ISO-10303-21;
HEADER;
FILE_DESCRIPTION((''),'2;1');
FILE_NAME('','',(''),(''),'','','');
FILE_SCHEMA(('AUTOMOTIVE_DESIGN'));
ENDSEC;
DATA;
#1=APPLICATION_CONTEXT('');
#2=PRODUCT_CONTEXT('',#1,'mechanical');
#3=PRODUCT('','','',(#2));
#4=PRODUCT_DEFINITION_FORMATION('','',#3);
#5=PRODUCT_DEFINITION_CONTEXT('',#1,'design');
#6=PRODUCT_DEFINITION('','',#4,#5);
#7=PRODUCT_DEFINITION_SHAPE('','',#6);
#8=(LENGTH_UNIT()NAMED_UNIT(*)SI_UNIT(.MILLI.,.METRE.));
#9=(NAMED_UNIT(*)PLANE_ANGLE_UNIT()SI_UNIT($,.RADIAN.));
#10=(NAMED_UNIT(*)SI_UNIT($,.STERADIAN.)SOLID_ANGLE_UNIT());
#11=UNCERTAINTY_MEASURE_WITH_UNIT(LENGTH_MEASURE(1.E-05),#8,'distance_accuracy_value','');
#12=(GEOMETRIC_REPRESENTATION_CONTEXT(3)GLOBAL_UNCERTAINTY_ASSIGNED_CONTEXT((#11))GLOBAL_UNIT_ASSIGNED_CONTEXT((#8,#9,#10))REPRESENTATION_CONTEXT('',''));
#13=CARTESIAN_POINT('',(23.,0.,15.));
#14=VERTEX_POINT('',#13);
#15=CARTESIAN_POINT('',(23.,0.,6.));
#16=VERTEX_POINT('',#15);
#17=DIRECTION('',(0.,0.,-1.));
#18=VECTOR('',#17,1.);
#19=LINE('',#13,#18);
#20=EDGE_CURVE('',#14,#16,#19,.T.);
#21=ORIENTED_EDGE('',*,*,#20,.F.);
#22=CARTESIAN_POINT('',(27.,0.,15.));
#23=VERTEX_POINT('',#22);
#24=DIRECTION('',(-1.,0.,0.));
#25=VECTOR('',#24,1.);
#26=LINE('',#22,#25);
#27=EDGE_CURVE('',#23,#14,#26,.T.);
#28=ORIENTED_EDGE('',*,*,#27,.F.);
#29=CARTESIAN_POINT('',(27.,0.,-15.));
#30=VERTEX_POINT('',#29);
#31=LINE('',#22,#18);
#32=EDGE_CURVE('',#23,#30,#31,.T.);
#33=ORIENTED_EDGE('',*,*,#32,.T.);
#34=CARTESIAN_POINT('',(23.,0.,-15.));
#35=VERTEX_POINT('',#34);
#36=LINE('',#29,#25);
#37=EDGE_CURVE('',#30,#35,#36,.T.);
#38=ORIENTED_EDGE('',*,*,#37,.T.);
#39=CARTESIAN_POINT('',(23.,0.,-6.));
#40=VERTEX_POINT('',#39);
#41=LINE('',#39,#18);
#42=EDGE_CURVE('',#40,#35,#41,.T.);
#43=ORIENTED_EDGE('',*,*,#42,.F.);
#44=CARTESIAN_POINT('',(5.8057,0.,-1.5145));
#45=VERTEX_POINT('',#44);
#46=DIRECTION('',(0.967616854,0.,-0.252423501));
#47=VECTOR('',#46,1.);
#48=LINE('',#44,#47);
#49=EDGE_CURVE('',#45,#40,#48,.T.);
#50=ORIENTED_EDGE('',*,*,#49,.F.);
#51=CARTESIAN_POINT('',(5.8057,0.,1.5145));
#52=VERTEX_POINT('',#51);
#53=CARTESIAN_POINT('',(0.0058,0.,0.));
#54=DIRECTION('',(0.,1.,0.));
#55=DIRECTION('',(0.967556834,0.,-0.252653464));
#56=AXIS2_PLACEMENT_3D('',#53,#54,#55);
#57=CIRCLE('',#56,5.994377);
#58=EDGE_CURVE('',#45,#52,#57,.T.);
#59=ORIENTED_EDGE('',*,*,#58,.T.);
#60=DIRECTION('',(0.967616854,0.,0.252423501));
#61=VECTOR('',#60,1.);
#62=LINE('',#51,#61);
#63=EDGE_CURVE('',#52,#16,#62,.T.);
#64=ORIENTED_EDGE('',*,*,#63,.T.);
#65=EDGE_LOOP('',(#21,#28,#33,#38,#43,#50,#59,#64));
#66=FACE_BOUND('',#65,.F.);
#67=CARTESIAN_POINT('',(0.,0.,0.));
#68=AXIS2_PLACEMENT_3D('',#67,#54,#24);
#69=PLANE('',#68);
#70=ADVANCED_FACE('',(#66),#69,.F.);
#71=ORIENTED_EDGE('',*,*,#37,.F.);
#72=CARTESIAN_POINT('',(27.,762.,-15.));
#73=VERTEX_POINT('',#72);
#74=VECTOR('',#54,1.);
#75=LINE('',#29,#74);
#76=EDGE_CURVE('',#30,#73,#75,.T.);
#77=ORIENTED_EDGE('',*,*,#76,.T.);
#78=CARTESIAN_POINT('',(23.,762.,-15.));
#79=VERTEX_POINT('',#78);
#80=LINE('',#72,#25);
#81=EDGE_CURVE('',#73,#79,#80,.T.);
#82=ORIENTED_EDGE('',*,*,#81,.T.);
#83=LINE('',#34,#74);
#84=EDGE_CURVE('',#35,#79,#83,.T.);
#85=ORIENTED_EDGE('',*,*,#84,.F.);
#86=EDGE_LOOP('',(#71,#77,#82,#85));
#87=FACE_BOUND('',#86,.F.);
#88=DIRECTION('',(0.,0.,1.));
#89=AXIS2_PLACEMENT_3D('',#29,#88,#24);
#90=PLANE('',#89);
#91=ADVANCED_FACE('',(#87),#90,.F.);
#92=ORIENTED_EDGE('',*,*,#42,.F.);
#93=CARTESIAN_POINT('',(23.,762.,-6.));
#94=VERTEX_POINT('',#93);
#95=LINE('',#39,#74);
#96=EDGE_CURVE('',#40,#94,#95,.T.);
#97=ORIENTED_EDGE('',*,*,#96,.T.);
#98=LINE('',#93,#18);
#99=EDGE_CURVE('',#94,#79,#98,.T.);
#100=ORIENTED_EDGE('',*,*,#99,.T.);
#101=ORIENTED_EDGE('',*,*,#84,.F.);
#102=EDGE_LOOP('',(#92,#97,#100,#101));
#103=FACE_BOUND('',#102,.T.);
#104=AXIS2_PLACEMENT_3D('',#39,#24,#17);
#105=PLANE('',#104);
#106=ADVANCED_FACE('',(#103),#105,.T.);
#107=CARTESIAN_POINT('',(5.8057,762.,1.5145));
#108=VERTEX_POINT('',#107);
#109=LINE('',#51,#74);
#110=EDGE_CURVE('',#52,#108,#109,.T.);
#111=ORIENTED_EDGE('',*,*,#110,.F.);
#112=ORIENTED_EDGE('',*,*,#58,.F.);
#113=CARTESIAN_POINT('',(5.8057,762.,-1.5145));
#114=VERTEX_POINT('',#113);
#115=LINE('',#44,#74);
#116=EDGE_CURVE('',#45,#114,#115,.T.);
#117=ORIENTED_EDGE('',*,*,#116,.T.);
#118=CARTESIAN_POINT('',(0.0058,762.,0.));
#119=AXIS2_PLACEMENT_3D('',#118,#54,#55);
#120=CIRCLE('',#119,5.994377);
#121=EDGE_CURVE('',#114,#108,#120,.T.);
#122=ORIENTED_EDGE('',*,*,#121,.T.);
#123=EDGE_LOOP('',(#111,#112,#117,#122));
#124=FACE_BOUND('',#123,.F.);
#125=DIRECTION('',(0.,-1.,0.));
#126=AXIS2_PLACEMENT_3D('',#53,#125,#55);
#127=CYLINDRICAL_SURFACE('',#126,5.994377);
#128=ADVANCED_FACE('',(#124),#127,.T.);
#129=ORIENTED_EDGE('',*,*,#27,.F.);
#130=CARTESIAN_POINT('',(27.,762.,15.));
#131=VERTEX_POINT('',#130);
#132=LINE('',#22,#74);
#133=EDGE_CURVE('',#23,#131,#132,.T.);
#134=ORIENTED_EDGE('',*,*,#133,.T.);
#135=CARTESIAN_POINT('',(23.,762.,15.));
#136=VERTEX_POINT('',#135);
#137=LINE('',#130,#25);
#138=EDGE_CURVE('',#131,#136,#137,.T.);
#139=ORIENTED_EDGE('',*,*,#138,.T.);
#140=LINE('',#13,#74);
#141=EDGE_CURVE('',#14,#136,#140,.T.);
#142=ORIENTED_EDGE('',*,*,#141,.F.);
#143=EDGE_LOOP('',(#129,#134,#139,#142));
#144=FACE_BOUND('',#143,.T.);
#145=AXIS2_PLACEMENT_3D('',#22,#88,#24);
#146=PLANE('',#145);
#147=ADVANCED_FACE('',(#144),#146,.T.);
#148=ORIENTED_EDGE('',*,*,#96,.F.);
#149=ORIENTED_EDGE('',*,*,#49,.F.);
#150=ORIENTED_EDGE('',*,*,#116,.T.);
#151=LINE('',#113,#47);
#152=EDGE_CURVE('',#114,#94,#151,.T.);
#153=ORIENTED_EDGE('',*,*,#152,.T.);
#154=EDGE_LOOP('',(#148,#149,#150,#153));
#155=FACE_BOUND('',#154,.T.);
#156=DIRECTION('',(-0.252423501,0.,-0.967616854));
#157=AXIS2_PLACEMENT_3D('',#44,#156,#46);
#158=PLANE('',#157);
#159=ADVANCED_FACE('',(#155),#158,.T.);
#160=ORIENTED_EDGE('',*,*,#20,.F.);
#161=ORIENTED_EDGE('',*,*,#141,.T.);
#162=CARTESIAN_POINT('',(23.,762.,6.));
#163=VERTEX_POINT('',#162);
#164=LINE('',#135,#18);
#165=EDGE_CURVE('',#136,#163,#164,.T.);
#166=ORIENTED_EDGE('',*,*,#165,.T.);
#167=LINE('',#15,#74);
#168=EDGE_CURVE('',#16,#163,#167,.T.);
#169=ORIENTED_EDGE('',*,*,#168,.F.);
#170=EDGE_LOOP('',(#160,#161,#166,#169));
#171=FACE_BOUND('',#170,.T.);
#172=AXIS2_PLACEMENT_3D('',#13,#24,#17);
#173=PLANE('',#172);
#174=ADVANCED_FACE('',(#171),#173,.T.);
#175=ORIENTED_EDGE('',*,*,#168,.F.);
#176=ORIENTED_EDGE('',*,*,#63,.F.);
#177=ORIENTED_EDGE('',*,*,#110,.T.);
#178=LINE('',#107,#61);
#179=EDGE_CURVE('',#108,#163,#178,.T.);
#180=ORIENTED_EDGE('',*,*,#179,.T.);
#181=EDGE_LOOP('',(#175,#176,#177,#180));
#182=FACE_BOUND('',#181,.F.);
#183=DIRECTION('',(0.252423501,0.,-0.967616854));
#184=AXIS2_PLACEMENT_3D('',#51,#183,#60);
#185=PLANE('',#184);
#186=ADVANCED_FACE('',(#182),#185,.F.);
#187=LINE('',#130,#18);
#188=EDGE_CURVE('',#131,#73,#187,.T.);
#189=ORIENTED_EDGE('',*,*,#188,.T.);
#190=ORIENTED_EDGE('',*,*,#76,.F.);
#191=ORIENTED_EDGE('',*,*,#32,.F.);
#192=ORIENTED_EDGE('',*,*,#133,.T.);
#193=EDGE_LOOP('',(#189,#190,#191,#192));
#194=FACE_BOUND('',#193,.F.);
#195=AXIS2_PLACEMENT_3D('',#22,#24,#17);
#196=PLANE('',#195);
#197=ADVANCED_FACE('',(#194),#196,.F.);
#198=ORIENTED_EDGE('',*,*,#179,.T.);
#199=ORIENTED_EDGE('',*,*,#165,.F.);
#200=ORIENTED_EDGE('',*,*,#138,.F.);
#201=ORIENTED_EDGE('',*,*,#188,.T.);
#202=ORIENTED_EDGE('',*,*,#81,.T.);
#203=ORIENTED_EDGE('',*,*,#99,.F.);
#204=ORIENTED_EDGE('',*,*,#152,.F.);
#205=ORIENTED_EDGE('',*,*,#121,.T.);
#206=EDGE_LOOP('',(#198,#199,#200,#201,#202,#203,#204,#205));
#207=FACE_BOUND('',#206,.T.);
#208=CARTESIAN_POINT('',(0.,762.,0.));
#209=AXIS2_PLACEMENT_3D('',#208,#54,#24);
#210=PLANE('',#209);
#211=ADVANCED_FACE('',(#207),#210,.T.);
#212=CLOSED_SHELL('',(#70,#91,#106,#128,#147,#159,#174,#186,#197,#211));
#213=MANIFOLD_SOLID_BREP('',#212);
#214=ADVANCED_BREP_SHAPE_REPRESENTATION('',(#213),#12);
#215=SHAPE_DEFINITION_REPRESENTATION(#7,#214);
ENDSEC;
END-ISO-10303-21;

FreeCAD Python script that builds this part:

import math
import FreeCAD as App
import Part
import Sketcher
Q = App.Units.Quantity

doc = App.newDocument("Part")
body = doc.addObject("PartDesign::Body", "Body")

# Sketch on XZ plane
sketch1 = doc.addObject("Sketcher::SketchObject", "Sketch")
body.addObject(sketch1)
sketch1.AttachmentSupport = (doc.XZ_Plane, [""])
sketch1.MapMode = "FlatFace"
sketch1.addGeometry([
    Part.LineSegment(App.Vector(23, 15, 0), App.Vector(27, 15, 0)),  # 0
    Part.LineSegment(App.Vector(27, 15, 0), App.Vector(27, -15, 0)),  # 1
    Part.LineSegment(App.Vector(27, -15, 0), App.Vector(23, -15, 0)),  # 2
    Part.LineSegment(App.Vector(23, -15, 0), App.Vector(23, -6, 0)),  # 3
    Part.LineSegment(App.Vector(23, -6, 0), App.Vector(5.8, -1.5, 0)),  # 4
    Part.ArcOfCircle(Part.Circle(App.Vector(0, 0, 0), App.Vector(0, 0, 1), 6), math.radians(15), math.radians(345)),  # 5
    Part.LineSegment(App.Vector(5.8, 1.5, 0), App.Vector(23, 6, 0)),  # 6
    Part.LineSegment(App.Vector(23, 6, 0), App.Vector(23, 15, 0)),  # 7
], False)
sketch1.addConstraint([
    Sketcher.Constraint("Coincident", 0, 2, 1, 1),
    Sketcher.Constraint("Coincident", 1, 2, 2, 1),
    Sketcher.Constraint("Coincident", 2, 2, 3, 1),
    Sketcher.Constraint("Coincident", 3, 2, 4, 1),
    Sketcher.Constraint("Coincident", 4, 2, 5, 2),
    Sketcher.Constraint("Coincident", 5, 1, 6, 1),
    Sketcher.Constraint("Coincident", 6, 2, 7, 1),
    Sketcher.Constraint("Coincident", 7, 2, 0, 1),
    Sketcher.Constraint("Horizontal", 0),
    Sketcher.Constraint("Vertical", 1),
    Sketcher.Constraint("Horizontal", 2),
    Sketcher.Constraint("Vertical", 3),
    Sketcher.Constraint("Vertical", 7),
    Sketcher.Constraint("Symmetric", 4, 2, 5, 1, -1),
    Sketcher.Constraint("Symmetric", 3, 2, 6, 2, -1),
    Sketcher.Constraint("Equal", 3, 7),
    Sketcher.Constraint("DistanceX", 0, 1, 0, 2, 4.0),
    Sketcher.Constraint("DistanceY", 1, 2, 1, 1, 30.0),
    Sketcher.Constraint("Radius", 5, 5.9944),
    Sketcher.Constraint("DistanceY", 3, 1, 3, 2, 9.0),
    Sketcher.Constraint("DistanceX", -1, 1, 0, 2, 27.0),
    Sketcher.Constraint("Angle", 4, Q("165.379 deg")),
    Sketcher.Constraint("DistanceX", 5, 3, 4, 2, 5.8),
])
pad1 = doc.addObject("PartDesign::Pad", "Pad")
body.addObject(pad1)
pad1.Profile = sketch1
pad1.Length = 762
pad1.Reversed = True

doc.recompute()
